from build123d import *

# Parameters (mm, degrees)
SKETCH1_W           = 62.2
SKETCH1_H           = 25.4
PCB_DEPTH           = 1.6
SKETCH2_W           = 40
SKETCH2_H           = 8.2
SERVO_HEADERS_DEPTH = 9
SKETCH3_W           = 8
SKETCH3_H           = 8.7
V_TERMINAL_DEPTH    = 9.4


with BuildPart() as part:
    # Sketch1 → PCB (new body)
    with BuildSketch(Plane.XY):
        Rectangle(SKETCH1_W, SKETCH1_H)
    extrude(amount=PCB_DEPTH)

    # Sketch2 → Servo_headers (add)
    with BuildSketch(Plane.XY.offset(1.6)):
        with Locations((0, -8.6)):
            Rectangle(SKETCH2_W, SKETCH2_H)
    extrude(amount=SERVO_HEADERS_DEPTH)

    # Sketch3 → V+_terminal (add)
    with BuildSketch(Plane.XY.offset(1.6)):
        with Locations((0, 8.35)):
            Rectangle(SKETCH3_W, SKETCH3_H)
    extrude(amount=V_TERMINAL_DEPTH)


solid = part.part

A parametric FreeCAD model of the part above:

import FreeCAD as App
import Part
import Sketcher
Q = App.Units.Quantity

doc = App.newDocument("Part")
body = doc.addObject("PartDesign::Body", "Body")

# Sketch on XY plane
sketch1 = body.newObject("Sketcher::SketchObject", "Sketch")
sketch1.AttachmentSupport = (doc.getObject("XY_Plane"), [""])
sketch1.MapMode = "FlatFace"
sketch1.addGeometry(Part.LineSegment(App.Vector(-31.1, 12.7, 0), App.Vector(-31.1, -12.7, 0)), False)
sketch1.addGeometry(Part.LineSegment(App.Vector(-31.1, -12.7, 0), App.Vector(31.1, -12.7, 0)), False)
sketch1.addGeometry(Part.LineSegment(App.Vector(31.1, -12.7, 0), App.Vector(31.1, 12.7, 0)), False)
sketch1.addGeometry(Part.LineSegment(App.Vector(31.1, 12.7, 0), App.Vector(-31.1, 12.7, 0)), False)
sketch1.addConstraint(Sketcher.Constraint("Coincident", 0, 2, 1, 1))
sketch1.addConstraint(Sketcher.Constraint("Coincident", 1, 2, 2, 1))
sketch1.addConstraint(Sketcher.Constraint("Coincident", 2, 2, 3, 1))
sketch1.addConstraint(Sketcher.Constraint("Coincident", 3, 2, 0, 1))
sketch1.addConstraint(Sketcher.Constraint("Vertical", 0))
sketch1.addConstraint(Sketcher.Constraint("Horizontal", 1))
sketch1.addConstraint(Sketcher.Constraint("Vertical", 2))
sketch1.addConstraint(Sketcher.Constraint("Horizontal", 3))
sketch1.addConstraint(Sketcher.Constraint("Symmetric", 0, 2, 2, 2, -1, 1))
sketch1.addConstraint(Sketcher.Constraint("DistanceX", 1, 1, 1, 2, Q("62.2 mm")))
sketch1.addConstraint(Sketcher.Constraint("DistanceY", 0, 2, 0, 1, Q("25.4 mm")))
pad1 = body.newObject("PartDesign::Pad", "Pad")
pad1.Profile = sketch1
pad1.Length = 1.6

# Sketch on XY plane
sketch2 = body.newObject("Sketcher::SketchObject", "Sketch001")
sketch2.AttachmentSupport = (doc.getObject("XY_Plane"), [""])
sketch2.MapMode = "FlatFace"
sketch2.AttachmentOffset = App.Placement(App.Vector(0, 0, 1.6), App.Rotation())
sketch2.addGeometry(Part.LineSegment(App.Vector(-20, -4.5, 0), App.Vector(-20, -12.7, 0)), False)
sketch2.addGeometry(Part.LineSegment(App.Vector(-20, -12.7, 0), App.Vector(20, -12.7, 0)), False)
sketch2.addGeometry(Part.LineSegment(App.Vector(20, -12.7, 0), App.Vector(20, -4.5, 0)), False)
sketch2.addGeometry(Part.LineSegment(App.Vector(20, -4.5, 0), App.Vector(-20, -4.5, 0)), False)
sketch2.addConstraint(Sketcher.Constraint("Coincident", 0, 2, 1, 1))
sketch2.addConstraint(Sketcher.Constraint("Coincident", 1, 2, 2, 1))
sketch2.addConstraint(Sketcher.Constraint("Coincident", 2, 2, 3, 1))
sketch2.addConstraint(Sketcher.Constraint("Coincident", 3, 2, 0, 1))
sketch2.addConstraint(Sketcher.Constraint("Vertical", 0))
sketch2.addConstraint(Sketcher.Constraint("Horizontal", 1))
sketch2.addConstraint(Sketcher.Constraint("Vertical", 2))
sketch2.addConstraint(Sketcher.Constraint("Horizontal", 3))
sketch2.addConstraint(Sketcher.Constraint("DistanceX", 1, 1, 1, 2, Q("40 mm")))
sketch2.addConstraint(Sketcher.Constraint("DistanceY", 0, 2, 0, 1, Q("8.2 mm")))
sketch2.addConstraint(Sketcher.Constraint("DistanceX", 0, 2, -1, 1, Q("20 mm")))
sketch2.addConstraint(Sketcher.Constraint("DistanceY", 0, 2, -1, 1, Q("12.7 mm")))
pad2 = body.newObject("PartDesign::Pad", "Pad001")
pad2.Profile = sketch2
pad2.Length = 9

# Sketch on XY plane
sketch3 = body.newObject("Sketcher::SketchObject", "Sketch002")
sketch3.AttachmentSupport = (doc.getObject("XY_Plane"), [""])
sketch3.MapMode = "FlatFace"
sketch3.AttachmentOffset = App.Placement(App.Vector(0, 0, 1.6), App.Rotation())
sketch3.addGeometry(Part.LineSegment(App.Vector(-4, 12.7, 0), App.Vector(-4, 4, 0)), False)
sketch3.addGeometry(Part.LineSegment(App.Vector(-4, 4, 0), App.Vector(4, 4, 0)), False)
sketch3.addGeometry(Part.LineSegment(App.Vector(4, 4, 0), App.Vector(4, 12.7, 0)), False)
sketch3.addGeometry(Part.LineSegment(App.Vector(4, 12.7, 0), App.Vector(-4, 12.7, 0)), False)
sketch3.addConstraint(Sketcher.Constraint("Coincident", 0, 2, 1, 1))
sketch3.addConstraint(Sketcher.Constraint("Coincident", 1, 2, 2, 1))
sketch3.addConstraint(Sketcher.Constraint("Coincident", 2, 2, 3, 1))
sketch3.addConstraint(Sketcher.Constraint("Coincident", 3, 2, 0, 1))
sketch3.addConstraint(Sketcher.Constraint("Vertical", 0))
sketch3.addConstraint(Sketcher.Constraint("Horizontal", 1))
sketch3.addConstraint(Sketcher.Constraint("Vertical", 2))
sketch3.addConstraint(Sketcher.Constraint("Horizontal", 3))
sketch3.addConstraint(Sketcher.Constraint("DistanceX", 1, 1, 1, 2, Q("8 mm")))
sketch3.addConstraint(Sketcher.Constraint("DistanceY", 0, 2, 0, 1, Q("8.7 mm")))
sketch3.addConstraint(Sketcher.Constraint("DistanceX", 0, 2, -1, 1, Q("4 mm")))
sketch3.addConstraint(Sketcher.Constraint("DistanceY", -1, 1, 0, 2, Q("4 mm")))
pad3 = body.newObject("PartDesign::Pad", "Pad002")
pad3.Profile = sketch3
pad3.Length = 9.4

doc.recompute()
